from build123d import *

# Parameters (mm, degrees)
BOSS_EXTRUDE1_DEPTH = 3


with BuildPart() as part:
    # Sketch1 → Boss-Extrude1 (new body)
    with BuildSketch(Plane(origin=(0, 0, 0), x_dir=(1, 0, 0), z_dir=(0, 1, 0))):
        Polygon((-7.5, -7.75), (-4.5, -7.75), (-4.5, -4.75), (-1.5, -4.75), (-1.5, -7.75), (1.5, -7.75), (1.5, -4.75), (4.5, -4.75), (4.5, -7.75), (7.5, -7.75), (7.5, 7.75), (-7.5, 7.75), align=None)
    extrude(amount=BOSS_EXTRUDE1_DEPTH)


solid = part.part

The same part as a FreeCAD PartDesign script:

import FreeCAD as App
import Part
import Sketcher
from FreeCAD import Vector
Q = App.Units.Quantity

doc = App.newDocument("Part")
params = doc.addObject("Spreadsheet::Sheet", "Params")
for row, (alias, value) in enumerate([
    ("sketch1_width", "3 mm"),
    ("sketch1_height", "15.5 mm"),
    ("pad1_length", "3 mm"),
], start=1):
    params.set(f"A{row}", alias)
    params.set(f"B{row}", "=" + value)
    params.setAlias(f"B{row}", alias)

body = doc.addObject("PartDesign::Body", "Body")

sketch1 = doc.addObject("Sketcher::SketchObject", "Sketch")
body.addObject(sketch1)
sketch1.AttachmentSupport = (doc.XZ_Plane, [""])
sketch1.MapMode = "FlatFace"
sketch1.addGeometry(Part.LineSegment(Vector(-7.5, 7.8, 0), Vector(-4.5, 7.8, 0)), False)
sketch1.addGeometry(Part.LineSegment(Vector(-4.5, 7.8, 0), Vector(-4.5, 4.8, 0)), False)
sketch1.addGeometry(Part.LineSegment(Vector(-4.5, 4.8, 0), Vector(-1.5, 4.8, 0)), False)
sketch1.addGeometry(Part.LineSegment(Vector(-1.5, 4.8, 0), Vector(-1.5, 7.8, 0)), False)
sketch1.addGeometry(Part.LineSegment(Vector(-1.5, 7.8, 0), Vector(1.5, 7.8, 0)), False)
sketch1.addGeometry(Part.LineSegment(Vector(1.5, 7.8, 0), Vector(1.5, 4.8, 0)), False)
sketch1.addGeometry(Part.LineSegment(Vector(1.5, 4.8, 0), Vector(4.5, 4.8, 0)), False)
sketch1.addGeometry(Part.LineSegment(Vector(4.5, 4.8, 0), Vector(4.5, 7.8, 0)), False)
sketch1.addGeometry(Part.LineSegment(Vector(4.5, 7.8, 0), Vector(7.5, 7.8, 0)), False)
sketch1.addGeometry(Part.LineSegment(Vector(7.5, 7.8, 0), Vector(7.5, -7.8, 0)), False)
sketch1.addGeometry(Part.LineSegment(Vector(7.5, -7.8, 0), Vector(-7.5, -7.8, 0)), False)
sketch1.addGeometry(Part.LineSegment(Vector(-7.5, -7.8, 0), Vector(-7.5, 7.8, 0)), False)
sketch1.addConstraint(Sketcher.Constraint("Coincident", 0, 2, 1, 1))
sketch1.addConstraint(Sketcher.Constraint("Coincident", 1, 2, 2, 1))
sketch1.addConstraint(Sketcher.Constraint("Coincident", 2, 2, 3, 1))
sketch1.addConstraint(Sketcher.Constraint("Coincident", 3, 2, 4, 1))
sketch1.addConstraint(Sketcher.Constraint("Coincident", 4, 2, 5, 1))
sketch1.addConstraint(Sketcher.Constraint("Coincident", 5, 2, 6, 1))
sketch1.addConstraint(Sketcher.Constraint("Coincident", 6, 2, 7, 1))
sketch1.addConstraint(Sketcher.Constraint("Coincident", 7, 2, 8, 1))
sketch1.addConstraint(Sketcher.Constraint("Coincident", 8, 2, 9, 1))
sketch1.addConstraint(Sketcher.Constraint("Coincident", 9, 2, 10, 1))
sketch1.addConstraint(Sketcher.Constraint("Coincident", 10, 2, 11, 1))
sketch1.addConstraint(Sketcher.Constraint("Coincident", 11, 2, 0, 1))
sketch1.addConstraint(Sketcher.Constraint("Horizontal", 0))
sketch1.addConstraint(Sketcher.Constraint("Vertical", 1))
sketch1.addConstraint(Sketcher.Constraint("Horizontal", 2))
sketch1.addConstraint(Sketcher.Constraint("Vertical", 3))
sketch1.addConstraint(Sketcher.Constraint("Horizontal", 4))
sketch1.addConstraint(Sketcher.Constraint("Vertical", 5))
sketch1.addConstraint(Sketcher.Constraint("Horizontal", 6))
sketch1.addConstraint(Sketcher.Constraint("Vertical", 7))
sketch1.addConstraint(Sketcher.Constraint("Horizontal", 8))
sketch1.addConstraint(Sketcher.Constraint("Vertical", 9))
sketch1.addConstraint(Sketcher.Constraint("Horizontal", 10))
sketch1.addConstraint(Sketcher.Constraint("Vertical", 11))
sketch1.addConstraint(Sketcher.Constraint("Symmetric", 8, 2, 10, 2, -1, 1))
sketch1.addConstraint(Sketcher.Constraint("Symmetric", 2, 2, 5, 2, -2))
sketch1.addConstraint(Sketcher.Constraint("Symmetric", 0, 2, 7, 2, -2))
sketch1.addConstraint(Sketcher.Constraint("Horizontal", 0, 2, 3, 2))
sketch1.addConstraint(Sketcher.Constraint("Equal", 0, 2))
sketch1.addConstraint(Sketcher.Constraint("Equal", 2, 4))
sketch1.addConstraint(Sketcher.Constraint("Equal", 8, 1))
sketch1.addConstraint(Sketcher.Constraint("DistanceX", 0, 1, 0, 2, Q("3 mm")))
sketch1.addConstraint(Sketcher.Constraint("DistanceY", 9, 2, 9, 1, Q("15.5 mm")))
sketch1.setExpression("Constraints[31]", "Params.sketch1_width")
sketch1.setExpression("Constraints[32]", "Params.sketch1_height")
pad1 = doc.addObject("PartDesign::Pad", "Pad")
body.addObject(pad1)
pad1.Profile = sketch1
pad1.setExpression("Length", "Params.pad1_length")
pad1.Reversed = True

doc.recompute()
